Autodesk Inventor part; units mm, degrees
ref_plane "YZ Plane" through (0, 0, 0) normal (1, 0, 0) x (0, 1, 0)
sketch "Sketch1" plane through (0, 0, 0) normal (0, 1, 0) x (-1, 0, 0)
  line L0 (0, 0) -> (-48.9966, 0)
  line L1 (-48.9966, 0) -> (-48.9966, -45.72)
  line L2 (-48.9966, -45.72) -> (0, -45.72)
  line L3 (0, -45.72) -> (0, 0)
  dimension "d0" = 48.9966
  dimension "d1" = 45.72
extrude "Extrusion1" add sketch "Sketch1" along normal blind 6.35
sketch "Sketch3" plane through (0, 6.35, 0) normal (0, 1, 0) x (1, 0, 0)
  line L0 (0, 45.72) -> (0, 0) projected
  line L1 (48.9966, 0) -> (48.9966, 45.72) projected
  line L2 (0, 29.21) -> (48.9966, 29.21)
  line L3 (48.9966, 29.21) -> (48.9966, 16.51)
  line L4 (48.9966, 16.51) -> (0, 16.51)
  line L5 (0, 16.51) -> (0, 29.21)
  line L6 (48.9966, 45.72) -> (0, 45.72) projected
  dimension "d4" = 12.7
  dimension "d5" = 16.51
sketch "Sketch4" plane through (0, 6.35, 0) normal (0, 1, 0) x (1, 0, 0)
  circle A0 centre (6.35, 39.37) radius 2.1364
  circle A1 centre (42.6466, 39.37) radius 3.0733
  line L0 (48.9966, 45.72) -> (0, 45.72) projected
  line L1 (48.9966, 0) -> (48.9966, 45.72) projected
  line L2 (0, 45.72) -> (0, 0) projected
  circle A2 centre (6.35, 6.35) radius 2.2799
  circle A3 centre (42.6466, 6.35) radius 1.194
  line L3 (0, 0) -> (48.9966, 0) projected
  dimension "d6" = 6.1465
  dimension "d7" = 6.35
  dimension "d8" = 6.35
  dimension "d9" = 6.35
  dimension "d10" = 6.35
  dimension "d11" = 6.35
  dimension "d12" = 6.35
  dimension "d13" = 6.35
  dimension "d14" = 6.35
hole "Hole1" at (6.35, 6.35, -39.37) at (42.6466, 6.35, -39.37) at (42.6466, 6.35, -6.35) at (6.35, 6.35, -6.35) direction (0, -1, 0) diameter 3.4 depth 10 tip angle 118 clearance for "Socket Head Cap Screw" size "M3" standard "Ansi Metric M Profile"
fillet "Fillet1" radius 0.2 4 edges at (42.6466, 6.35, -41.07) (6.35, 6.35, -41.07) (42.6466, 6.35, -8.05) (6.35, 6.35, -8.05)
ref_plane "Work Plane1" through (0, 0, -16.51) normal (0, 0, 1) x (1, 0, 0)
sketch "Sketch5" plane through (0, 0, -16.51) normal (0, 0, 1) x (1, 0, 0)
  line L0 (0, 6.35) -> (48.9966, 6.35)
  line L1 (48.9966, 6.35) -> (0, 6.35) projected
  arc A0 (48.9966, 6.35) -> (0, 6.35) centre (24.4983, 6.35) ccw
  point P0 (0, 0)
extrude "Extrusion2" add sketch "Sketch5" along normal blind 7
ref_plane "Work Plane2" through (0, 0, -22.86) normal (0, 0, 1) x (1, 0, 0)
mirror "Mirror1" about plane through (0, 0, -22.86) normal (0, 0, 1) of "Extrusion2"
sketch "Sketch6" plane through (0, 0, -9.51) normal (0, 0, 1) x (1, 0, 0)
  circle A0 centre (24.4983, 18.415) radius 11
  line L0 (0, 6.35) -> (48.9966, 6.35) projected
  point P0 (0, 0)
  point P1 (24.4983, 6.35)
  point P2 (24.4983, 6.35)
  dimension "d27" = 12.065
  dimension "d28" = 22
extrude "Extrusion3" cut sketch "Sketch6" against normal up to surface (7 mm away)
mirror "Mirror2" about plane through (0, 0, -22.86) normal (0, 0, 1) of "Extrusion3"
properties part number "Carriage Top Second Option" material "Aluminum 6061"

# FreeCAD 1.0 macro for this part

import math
import FreeCAD as App
import Part
import Sketcher


def edges_at(feature, points):
    """Names of the edges that pass closest to the given points."""
    edges = feature.Shape.Edges
    near = lambda p: min(range(len(edges)), key=lambda i: edges[i].distToShape(Part.Vertex(*p))[0])
    return sorted({f"Edge{near(p) + 1}" for p in points})


def add_polygon(sketch, points):
    """Adds a closed chain of lines whose ends are joined by coincident constraints."""
    first, n = sketch.GeometryCount, len(points)
    for a, b in zip(points, points[1:] + points[:1]):
        sketch.addGeometry(Part.LineSegment(App.Vector(*a, 0), App.Vector(*b, 0)), False)
    for i in range(n):
        sketch.addConstraint(Sketcher.Constraint("Coincident", first + i, 2, first + (i + 1) % n, 1))

doc = App.newDocument("Part")
body = doc.addObject("PartDesign::Body", "Body")

# Sketch on XZ plane
sketch1 = body.newObject("Sketcher::SketchObject", "Sketch")
sketch1.AttachmentSupport = (doc.getObject("XZ_Plane"), [""])
sketch1.MapMode = "FlatFace"
add_polygon(sketch1, [(0, -45.72), (0, 0), (48.9966, 0), (48.9966, -45.72)])  # lines 0-3
sketch1.addConstraint(Sketcher.Constraint("Vertical", 0))
sketch1.addConstraint(Sketcher.Constraint("Horizontal", 1))
sketch1.addConstraint(Sketcher.Constraint("Vertical", 2))
sketch1.addConstraint(Sketcher.Constraint("Horizontal", 3))
sketch1.addConstraint(Sketcher.Constraint("Coincident", 0, 2, -1, 1))
sketch1.addConstraint(Sketcher.Constraint("DistanceY", 0, 1, 0, 2, 45.72))
sketch1.addConstraint(Sketcher.Constraint("DistanceX", 1, 1, 1, 2, 48.9966))
pad1 = body.newObject("PartDesign::Pad", "Pad")
pad1.Profile = sketch1
pad1.Length = 6.35
pad1.Reversed = True

# Sketch on XZ plane
sketch2 = body.newObject("Sketcher::SketchObject", "Sketch001")
sketch2.AttachmentSupport = (doc.getObject("XZ_Plane"), [""])
sketch2.MapMode = "FlatFace"
sketch2.AttachmentOffset = App.Placement(App.Vector(0, 0, -6.35), App.Rotation())
sketch2.addGeometry(Part.Circle(App.Vector(6.35, -39.37, 0), App.Vector(0, 0, 1), 1.7), False)
sketch2.addGeometry(Part.Circle(App.Vector(42.6466, -39.37, 0), App.Vector(0, 0, 1), 1.7), False)
sketch2.addGeometry(Part.Circle(App.Vector(42.6466, -6.35, 0), App.Vector(0, 0, 1), 1.7), False)
sketch2.addGeometry(Part.Circle(App.Vector(6.35, -6.35, 0), App.Vector(0, 0, 1), 1.7), False)
sketch2.addConstraint(Sketcher.Constraint("Equal", 0, 1))
sketch2.addConstraint(Sketcher.Constraint("Equal", 1, 2))
sketch2.addConstraint(Sketcher.Constraint("Equal", 2, 3))
sketch2.addConstraint(Sketcher.Constraint("Horizontal", 0, 3, 1, 3))
sketch2.addConstraint(Sketcher.Constraint("Horizontal", 2, 3, 3, 3))
sketch2.addConstraint(Sketcher.Constraint("Vertical", 1, 3, 2, 3))
sketch2.addConstraint(Sketcher.Constraint("Vertical", 0, 3, 3, 3))
sketch2.addConstraint(Sketcher.Constraint("Diameter", 0, 3.4))
sketch2.addConstraint(Sketcher.Constraint("DistanceX", -1, 1, 0, 3, 6.35))
sketch2.addConstraint(Sketcher.Constraint("DistanceY", 0, 3, -1, 1, 39.37))
sketch2.addConstraint(Sketcher.Constraint("DistanceY", 2, 3, -1, 1, 6.35))
sketch2.addConstraint(Sketcher.Constraint("DistanceX", -1, 1, 1, 3, 42.6466))
doc.recompute()
hole = body.newObject("PartDesign::Hole", "Hole")
hole.Profile = sketch2
hole.ThreadType = "None"
hole.Diameter = 3.4
hole.DepthType = "Dimension"
hole.Depth = 10
hole.DrillPoint = "Angled"
hole.DrillPointAngle = 118
hole.Reversed = True
doc.recompute()

fillet = body.newObject("PartDesign::Fillet", "Fillet")
fillet.Base = (hole, edges_at(hole, [
    (42.647, 6.35, -41.07),
    (6.35, 6.35, -41.07),
    (42.647, 6.35, -8.05),
    (6.35, 6.35, -8.05),
]))
fillet.Radius = 0.2

# Sketch on XY plane
sketch3 = body.newObject("Sketcher::SketchObject", "Sketch002")
sketch3.AttachmentSupport = (doc.getObject("XY_Plane"), [""])
sketch3.MapMode = "FlatFace"
sketch3.AttachmentOffset = App.Placement(App.Vector(0, 0, -16.51), App.Rotation())
sketch3.addGeometry(Part.ArcOfCircle(Part.Circle(App.Vector(24.4983, 6.35, 0), App.Vector(0, 0, 1), 24.4983), math.radians(0), math.radians(180)), False)
sketch3.addGeometry(Part.LineSegment(App.Vector(0, 6.35, 0), App.Vector(48.9966, 6.35, 0)), False)
sketch3.addConstraint(Sketcher.Constraint("Coincident", 0, 1, 1, 2))
sketch3.addConstraint(Sketcher.Constraint("Coincident", 1, 1, 0, 2))
sketch3.addConstraint(Sketcher.Constraint("Horizontal", 1))
sketch3.addConstraint(Sketcher.Constraint("PointOnObject", 1, 1, -2))
sketch3.addConstraint(Sketcher.Constraint("Radius", 0, 24.4983))
sketch3.addConstraint(Sketcher.Constraint("DistanceY", -1, 1, 0, 3, 6.35))
sketch3.addConstraint(Sketcher.Constraint("DistanceY", -1, 1, 0, 1, 6.35))
pad2 = body.newObject("PartDesign::Pad", "Pad001")
pad2.Profile = sketch3
pad2.Length = 7
doc.recompute()

datumplane = body.newObject("PartDesign::Plane", "DatumPlane")
datumplane.AttachmentSupport = (doc.getObject("XY_Plane"), [""])
datumplane.MapMode = "FlatFace"
datumplane.AttachmentOffset = App.Placement(App.Vector(0, 0, -22.86), App.Rotation())
mirrored = body.newObject("PartDesign::Mirrored", "Mirrored")
mirrored.Originals = [pad2]
mirrored.MirrorPlane = (datumplane, [""])
body.Tip = mirrored

# Sketch on XY plane
sketch4 = body.newObject("Sketcher::SketchObject", "Sketch003")
sketch4.AttachmentSupport = (doc.getObject("XY_Plane"), [""])
sketch4.MapMode = "FlatFace"
sketch4.AttachmentOffset = App.Placement(App.Vector(0, 0, -9.51), App.Rotation())
sketch4.addGeometry(Part.Circle(App.Vector(24.4983, 18.415, 0), App.Vector(0, 0, 1), 11), False)
sketch4.addConstraint(Sketcher.Constraint("Diameter", 0, 22.0))
sketch4.addConstraint(Sketcher.Constraint("DistanceY", -1, 1, 0, 3, 18.415))
sketch4.addConstraint(Sketcher.Constraint("DistanceX", -1, 1, 0, 3, 24.4983))
pocket1 = body.newObject("PartDesign::Pocket", "Pocket")
pocket1.Profile = sketch4
pocket1.Length = 7
doc.recompute()

datumplane2 = body.newObject("PartDesign::Plane", "DatumPlane001")
datumplane2.AttachmentSupport = (doc.getObject("XY_Plane"), [""])
datumplane2.MapMode = "FlatFace"
datumplane2.AttachmentOffset = App.Placement(App.Vector(0, 0, -22.86), App.Rotation())
mirrored2 = body.newObject("PartDesign::Mirrored", "Mirrored001")
mirrored2.Originals = [pocket1]
mirrored2.MirrorPlane = (datumplane2, [""])
body.Tip = mirrored2

doc.recompute()
